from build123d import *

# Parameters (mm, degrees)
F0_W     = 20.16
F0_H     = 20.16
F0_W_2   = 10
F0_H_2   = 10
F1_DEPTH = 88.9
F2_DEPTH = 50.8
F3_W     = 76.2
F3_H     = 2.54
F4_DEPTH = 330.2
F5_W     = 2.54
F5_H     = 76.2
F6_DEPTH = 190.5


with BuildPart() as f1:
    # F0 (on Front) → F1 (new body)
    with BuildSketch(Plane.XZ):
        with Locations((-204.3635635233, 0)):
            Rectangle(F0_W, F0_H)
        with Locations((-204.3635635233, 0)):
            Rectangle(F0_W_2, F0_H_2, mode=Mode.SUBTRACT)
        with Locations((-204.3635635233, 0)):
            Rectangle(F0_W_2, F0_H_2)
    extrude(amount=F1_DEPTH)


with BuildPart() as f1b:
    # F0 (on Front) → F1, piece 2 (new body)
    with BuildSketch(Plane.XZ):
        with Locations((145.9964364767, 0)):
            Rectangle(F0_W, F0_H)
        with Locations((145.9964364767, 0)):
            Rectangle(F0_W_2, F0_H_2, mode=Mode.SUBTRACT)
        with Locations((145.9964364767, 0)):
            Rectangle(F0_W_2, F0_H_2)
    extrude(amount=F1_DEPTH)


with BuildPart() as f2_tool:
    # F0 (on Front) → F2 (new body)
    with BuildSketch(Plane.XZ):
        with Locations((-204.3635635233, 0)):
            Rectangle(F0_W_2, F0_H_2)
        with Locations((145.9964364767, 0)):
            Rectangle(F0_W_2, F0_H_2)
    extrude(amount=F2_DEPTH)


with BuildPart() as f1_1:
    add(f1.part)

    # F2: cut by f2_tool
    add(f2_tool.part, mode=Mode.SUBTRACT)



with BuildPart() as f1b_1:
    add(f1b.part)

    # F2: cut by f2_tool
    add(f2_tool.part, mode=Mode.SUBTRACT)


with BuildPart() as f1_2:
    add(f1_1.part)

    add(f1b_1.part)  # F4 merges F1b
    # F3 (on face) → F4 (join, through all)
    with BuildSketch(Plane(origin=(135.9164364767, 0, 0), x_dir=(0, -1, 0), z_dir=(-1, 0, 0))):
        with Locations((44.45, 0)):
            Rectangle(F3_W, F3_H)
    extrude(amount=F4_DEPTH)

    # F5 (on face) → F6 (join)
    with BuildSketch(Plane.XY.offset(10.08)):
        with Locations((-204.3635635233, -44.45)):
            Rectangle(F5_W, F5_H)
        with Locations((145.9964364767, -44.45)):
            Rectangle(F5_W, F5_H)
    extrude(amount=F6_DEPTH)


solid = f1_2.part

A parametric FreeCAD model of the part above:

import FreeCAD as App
import Part
import Sketcher
from FreeCAD import Vector
Q = App.Units.Quantity


def add_polygon(sketch, points):
    """Adds a closed chain of lines whose ends are joined by coincident constraints."""
    first, n = sketch.GeometryCount, len(points)
    for a, b in zip(points, points[1:] + points[:1]):
        sketch.addGeometry(Part.LineSegment(App.Vector(*a, 0), App.Vector(*b, 0)), False)
    for i in range(n):
        sketch.addConstraint(Sketcher.Constraint("Coincident", first + i, 2, first + (i + 1) % n, 1))

doc = App.newDocument("Part")
params = doc.addObject("Spreadsheet::Sheet", "Params")
for row, (alias, value) in enumerate([
    ("pad1_length", "3.5 in"),
    ("pad2_length", "3.5 in"),
    ("pad3_length", "2 in"),
    ("sketch4_width", "3 in"),
    ("sketch4_height", "0.1 in"),
    ("pad4_length", "13 in"),
    ("sketch5_height", "3 in"),
    ("sketch5_width", "0.1 in"),
    ("pad5_length", "7.5 in"),
], start=1):
    params.set(f"A{row}", alias)
    params.set(f"B{row}", "=" + value)
    params.setAlias(f"B{row}", alias)

body = doc.addObject("PartDesign::Body", "Body")

sketch1 = body.newObject("Sketcher::SketchObject", "Sketch")
sketch1.AttachmentSupport = (doc.getObject("XZ_Plane"), [""])
sketch1.MapMode = "FlatFace"
add_polygon(sketch1, [(-214.443564, 10.08), (-214.443564, -10.08), (-194.283564, -10.08), (-194.283564, 10.08)])
sketch1.addConstraint(Sketcher.Constraint("Vertical", 0))
sketch1.addConstraint(Sketcher.Constraint("Horizontal", 1))
sketch1.addConstraint(Sketcher.Constraint("Vertical", 2))
sketch1.addConstraint(Sketcher.Constraint("Horizontal", 3))
sketch1.addConstraint(Sketcher.Constraint("Equal", 3, 0))
sketch1.addConstraint(Sketcher.Constraint("DistanceX", 1, 1, 1, 2, Q("20.16 mm")))
sketch1.addConstraint(Sketcher.Constraint("DistanceY", 0, 2, -1, 1, Q("10.08 mm")))
sketch1.addConstraint(Sketcher.Constraint("DistanceX", 0, 2, -1, 1, Q("214.443564 mm")))
pad1 = body.newObject("PartDesign::Pad", "Pad")
pad1.Profile = sketch1
pad1.setExpression("Length", "Params.pad1_length")
body2 = doc.addObject("PartDesign::Body", "Body001")

sketch2 = body2.newObject("Sketcher::SketchObject", "Sketch001")
sketch2.AttachmentSupport = (doc.getObject("XZ_Plane001"), [""])
sketch2.MapMode = "FlatFace"
add_polygon(sketch2, [(135.916436, 10.08), (135.916436, -10.08), (156.076436, -10.08), (156.076436, 10.08)])
sketch2.addConstraint(Sketcher.Constraint("Vertical", 0))
sketch2.addConstraint(Sketcher.Constraint("Horizontal", 1))
sketch2.addConstraint(Sketcher.Constraint("Vertical", 2))
sketch2.addConstraint(Sketcher.Constraint("Horizontal", 3))
sketch2.addConstraint(Sketcher.Constraint("Equal", 3, 0))
sketch2.addConstraint(Sketcher.Constraint("DistanceX", 1, 1, 1, 2, Q("20.16 mm")))
sketch2.addConstraint(Sketcher.Constraint("DistanceY", 0, 2, -1, 1, Q("10.08 mm")))
sketch2.addConstraint(Sketcher.Constraint("DistanceX", -1, 1, 0, 2, Q("135.916436 mm")))
pad2 = body2.newObject("PartDesign::Pad", "Pad001")
pad2.Profile = sketch2
pad2.setExpression("Length", "Params.pad2_length")
body3 = doc.addObject("PartDesign::Body", "Body002")
body3.AllowCompound = True

sketch3 = body3.newObject("Sketcher::SketchObject", "Sketch002")
sketch3.AttachmentSupport = (doc.getObject("XZ_Plane002"), [""])
sketch3.MapMode = "FlatFace"
add_polygon(sketch3, [(-209.363564, 5), (-209.363564, -5), (-199.363564, -5), (-199.363564, 5)])
add_polygon(sketch3, [(140.996436, 5), (140.996436, -5), (150.996436, -5), (150.996436, 5)])
sketch3.addConstraint(Sketcher.Constraint("Vertical", 0))
sketch3.addConstraint(Sketcher.Constraint("Horizontal", 1))
sketch3.addConstraint(Sketcher.Constraint("Vertical", 2))
sketch3.addConstraint(Sketcher.Constraint("Horizontal", 3))
sketch3.addConstraint(Sketcher.Constraint("Vertical", 4))
sketch3.addConstraint(Sketcher.Constraint("Horizontal", 5))
sketch3.addConstraint(Sketcher.Constraint("Vertical", 6))
sketch3.addConstraint(Sketcher.Constraint("Horizontal", 7))
sketch3.addConstraint(Sketcher.Constraint("Horizontal", 1, 2, 4, 2))
sketch3.addConstraint(Sketcher.Constraint("Horizontal", 3, 2, 6, 2))
sketch3.addConstraint(Sketcher.Constraint("Equal", 3, 5))
sketch3.addConstraint(Sketcher.Constraint("Equal", 7, 0))
sketch3.addConstraint(Sketcher.Constraint("DistanceX", 1, 2, 4, 2, Q("13.4 in")))
sketch3.addConstraint(Sketcher.Constraint("DistanceX", 1, 1, 1, 2, Q("10 mm")))
sketch3.addConstraint(Sketcher.Constraint("DistanceY", 0, 2, -1, 1, Q("5 mm")))
sketch3.addConstraint(Sketcher.Constraint("DistanceX", 0, 2, -1, 1, Q("209.363564 mm")))
pad3 = body3.newObject("PartDesign::Pad", "Pad002")
pad3.Profile = sketch3
pad3.setExpression("Length", "Params.pad3_length")
doc.recompute()

body4 = doc.addObject("PartDesign::Body", "Body003")
body4.BaseFeature = body3
boolean = body.newObject("PartDesign::Boolean", "Boolean")
boolean.Type = "Cut"
boolean.addObjects([body4])
doc.recompute()

boolean2 = body2.newObject("PartDesign::Boolean", "Boolean001")
boolean2.Type = "Cut"
boolean2.addObjects([body3])
body.AllowCompound = True
doc.recompute()

boolean3 = body.newObject("PartDesign::Boolean", "Boolean002")
boolean3.Type = "Fuse"
boolean3.addObjects([body2])

sketch4 = body.newObject("Sketcher::SketchObject", "Sketch003")
sketch4.AttachmentSupport = (doc.getObject("YZ_Plane"), [""])
sketch4.MapMode = "FlatFace"
sketch4.AttachmentOffset = App.Placement(Vector(0, 0, 135.916436), App.Rotation())
add_polygon(sketch4, [(-6.35, 1.27), (-6.35, -1.27), (-82.55, -1.27), (-82.55, 1.27)])
sketch4.addConstraint(Sketcher.Constraint("Vertical", 0))
sketch4.addConstraint(Sketcher.Constraint("Horizontal", 1))
sketch4.addConstraint(Sketcher.Constraint("Vertical", 2))
sketch4.addConstraint(Sketcher.Constraint("Horizontal", 3))
sketch4.addConstraint(Sketcher.Constraint("DistanceX", 1, 2, 1, 1, Q("3 in")))
sketch4.addConstraint(Sketcher.Constraint("DistanceY", 0, 2, 0, 1, Q("0.1 in")))
sketch4.addConstraint(Sketcher.Constraint("DistanceX", 0, 2, -1, 1, Q("0.25 in")))
sketch4.addConstraint(Sketcher.Constraint("DistanceY", 0, 2, -1, 1, Q("0.05 in")))
sketch4.setExpression("Constraints[8]", "Params.sketch4_width")
sketch4.setExpression("Constraints[9]", "Params.sketch4_height")
pad4 = body.newObject("PartDesign::Pad", "Pad003")
pad4.Profile = sketch4
pad4.setExpression("Length", "Params.pad4_length")
pad4.Reversed = True

sketch5 = body.newObject("Sketcher::SketchObject", "Sketch004")
sketch5.AttachmentSupport = (doc.getObject("XY_Plane"), [""])
sketch5.MapMode = "FlatFace"
sketch5.AttachmentOffset = App.Placement(Vector(0, 0, 10.08), App.Rotation())
add_polygon(sketch5, [(-205.633564, -6.35), (-205.633564, -82.55), (-203.093564, -82.55), (-203.093564, -6.35)])
add_polygon(sketch5, [(144.726436, -6.35), (144.726436, -82.55), (147.266436, -82.55), (147.266436, -6.35)])
sketch5.addConstraint(Sketcher.Constraint("Vertical", 0))
sketch5.addConstraint(Sketcher.Constraint("Horizontal", 1))
sketch5.addConstraint(Sketcher.Constraint("Vertical", 2))
sketch5.addConstraint(Sketcher.Constraint("Horizontal", 3))
sketch5.addConstraint(Sketcher.Constraint("Vertical", 4))
sketch5.addConstraint(Sketcher.Constraint("Horizontal", 5))
sketch5.addConstraint(Sketcher.Constraint("Vertical", 6))
sketch5.addConstraint(Sketcher.Constraint("Horizontal", 7))
sketch5.addConstraint(Sketcher.Constraint("Horizontal", 1, 2, 4, 2))
sketch5.addConstraint(Sketcher.Constraint("Horizontal", 3, 2, 6, 2))
sketch5.addConstraint(Sketcher.Constraint("Equal", 3, 5))
sketch5.addConstraint(Sketcher.Constraint("DistanceY", 0, 2, 0, 1, Q("3 in")))
sketch5.addConstraint(Sketcher.Constraint("DistanceX", 1, 1, 1, 2, Q("0.1 in")))
sketch5.addConstraint(Sketcher.Constraint("DistanceY", 0, 2, -1, 1, Q("3.25 in")))
sketch5.addConstraint(Sketcher.Constraint("DistanceX", 1, 2, 4, 2, Q("347.82 mm")))
sketch5.addConstraint(Sketcher.Constraint("DistanceX", 0, 2, -1, 1, Q("205.633564 mm")))
sketch5.setExpression("Constraints[19]", "Params.sketch5_height")
sketch5.setExpression("Constraints[20]", "Params.sketch5_width")
pad5 = body.newObject("PartDesign::Pad", "Pad004")
pad5.Profile = sketch5
pad5.setExpression("Length", "Params.pad5_length")

doc.recompute()
